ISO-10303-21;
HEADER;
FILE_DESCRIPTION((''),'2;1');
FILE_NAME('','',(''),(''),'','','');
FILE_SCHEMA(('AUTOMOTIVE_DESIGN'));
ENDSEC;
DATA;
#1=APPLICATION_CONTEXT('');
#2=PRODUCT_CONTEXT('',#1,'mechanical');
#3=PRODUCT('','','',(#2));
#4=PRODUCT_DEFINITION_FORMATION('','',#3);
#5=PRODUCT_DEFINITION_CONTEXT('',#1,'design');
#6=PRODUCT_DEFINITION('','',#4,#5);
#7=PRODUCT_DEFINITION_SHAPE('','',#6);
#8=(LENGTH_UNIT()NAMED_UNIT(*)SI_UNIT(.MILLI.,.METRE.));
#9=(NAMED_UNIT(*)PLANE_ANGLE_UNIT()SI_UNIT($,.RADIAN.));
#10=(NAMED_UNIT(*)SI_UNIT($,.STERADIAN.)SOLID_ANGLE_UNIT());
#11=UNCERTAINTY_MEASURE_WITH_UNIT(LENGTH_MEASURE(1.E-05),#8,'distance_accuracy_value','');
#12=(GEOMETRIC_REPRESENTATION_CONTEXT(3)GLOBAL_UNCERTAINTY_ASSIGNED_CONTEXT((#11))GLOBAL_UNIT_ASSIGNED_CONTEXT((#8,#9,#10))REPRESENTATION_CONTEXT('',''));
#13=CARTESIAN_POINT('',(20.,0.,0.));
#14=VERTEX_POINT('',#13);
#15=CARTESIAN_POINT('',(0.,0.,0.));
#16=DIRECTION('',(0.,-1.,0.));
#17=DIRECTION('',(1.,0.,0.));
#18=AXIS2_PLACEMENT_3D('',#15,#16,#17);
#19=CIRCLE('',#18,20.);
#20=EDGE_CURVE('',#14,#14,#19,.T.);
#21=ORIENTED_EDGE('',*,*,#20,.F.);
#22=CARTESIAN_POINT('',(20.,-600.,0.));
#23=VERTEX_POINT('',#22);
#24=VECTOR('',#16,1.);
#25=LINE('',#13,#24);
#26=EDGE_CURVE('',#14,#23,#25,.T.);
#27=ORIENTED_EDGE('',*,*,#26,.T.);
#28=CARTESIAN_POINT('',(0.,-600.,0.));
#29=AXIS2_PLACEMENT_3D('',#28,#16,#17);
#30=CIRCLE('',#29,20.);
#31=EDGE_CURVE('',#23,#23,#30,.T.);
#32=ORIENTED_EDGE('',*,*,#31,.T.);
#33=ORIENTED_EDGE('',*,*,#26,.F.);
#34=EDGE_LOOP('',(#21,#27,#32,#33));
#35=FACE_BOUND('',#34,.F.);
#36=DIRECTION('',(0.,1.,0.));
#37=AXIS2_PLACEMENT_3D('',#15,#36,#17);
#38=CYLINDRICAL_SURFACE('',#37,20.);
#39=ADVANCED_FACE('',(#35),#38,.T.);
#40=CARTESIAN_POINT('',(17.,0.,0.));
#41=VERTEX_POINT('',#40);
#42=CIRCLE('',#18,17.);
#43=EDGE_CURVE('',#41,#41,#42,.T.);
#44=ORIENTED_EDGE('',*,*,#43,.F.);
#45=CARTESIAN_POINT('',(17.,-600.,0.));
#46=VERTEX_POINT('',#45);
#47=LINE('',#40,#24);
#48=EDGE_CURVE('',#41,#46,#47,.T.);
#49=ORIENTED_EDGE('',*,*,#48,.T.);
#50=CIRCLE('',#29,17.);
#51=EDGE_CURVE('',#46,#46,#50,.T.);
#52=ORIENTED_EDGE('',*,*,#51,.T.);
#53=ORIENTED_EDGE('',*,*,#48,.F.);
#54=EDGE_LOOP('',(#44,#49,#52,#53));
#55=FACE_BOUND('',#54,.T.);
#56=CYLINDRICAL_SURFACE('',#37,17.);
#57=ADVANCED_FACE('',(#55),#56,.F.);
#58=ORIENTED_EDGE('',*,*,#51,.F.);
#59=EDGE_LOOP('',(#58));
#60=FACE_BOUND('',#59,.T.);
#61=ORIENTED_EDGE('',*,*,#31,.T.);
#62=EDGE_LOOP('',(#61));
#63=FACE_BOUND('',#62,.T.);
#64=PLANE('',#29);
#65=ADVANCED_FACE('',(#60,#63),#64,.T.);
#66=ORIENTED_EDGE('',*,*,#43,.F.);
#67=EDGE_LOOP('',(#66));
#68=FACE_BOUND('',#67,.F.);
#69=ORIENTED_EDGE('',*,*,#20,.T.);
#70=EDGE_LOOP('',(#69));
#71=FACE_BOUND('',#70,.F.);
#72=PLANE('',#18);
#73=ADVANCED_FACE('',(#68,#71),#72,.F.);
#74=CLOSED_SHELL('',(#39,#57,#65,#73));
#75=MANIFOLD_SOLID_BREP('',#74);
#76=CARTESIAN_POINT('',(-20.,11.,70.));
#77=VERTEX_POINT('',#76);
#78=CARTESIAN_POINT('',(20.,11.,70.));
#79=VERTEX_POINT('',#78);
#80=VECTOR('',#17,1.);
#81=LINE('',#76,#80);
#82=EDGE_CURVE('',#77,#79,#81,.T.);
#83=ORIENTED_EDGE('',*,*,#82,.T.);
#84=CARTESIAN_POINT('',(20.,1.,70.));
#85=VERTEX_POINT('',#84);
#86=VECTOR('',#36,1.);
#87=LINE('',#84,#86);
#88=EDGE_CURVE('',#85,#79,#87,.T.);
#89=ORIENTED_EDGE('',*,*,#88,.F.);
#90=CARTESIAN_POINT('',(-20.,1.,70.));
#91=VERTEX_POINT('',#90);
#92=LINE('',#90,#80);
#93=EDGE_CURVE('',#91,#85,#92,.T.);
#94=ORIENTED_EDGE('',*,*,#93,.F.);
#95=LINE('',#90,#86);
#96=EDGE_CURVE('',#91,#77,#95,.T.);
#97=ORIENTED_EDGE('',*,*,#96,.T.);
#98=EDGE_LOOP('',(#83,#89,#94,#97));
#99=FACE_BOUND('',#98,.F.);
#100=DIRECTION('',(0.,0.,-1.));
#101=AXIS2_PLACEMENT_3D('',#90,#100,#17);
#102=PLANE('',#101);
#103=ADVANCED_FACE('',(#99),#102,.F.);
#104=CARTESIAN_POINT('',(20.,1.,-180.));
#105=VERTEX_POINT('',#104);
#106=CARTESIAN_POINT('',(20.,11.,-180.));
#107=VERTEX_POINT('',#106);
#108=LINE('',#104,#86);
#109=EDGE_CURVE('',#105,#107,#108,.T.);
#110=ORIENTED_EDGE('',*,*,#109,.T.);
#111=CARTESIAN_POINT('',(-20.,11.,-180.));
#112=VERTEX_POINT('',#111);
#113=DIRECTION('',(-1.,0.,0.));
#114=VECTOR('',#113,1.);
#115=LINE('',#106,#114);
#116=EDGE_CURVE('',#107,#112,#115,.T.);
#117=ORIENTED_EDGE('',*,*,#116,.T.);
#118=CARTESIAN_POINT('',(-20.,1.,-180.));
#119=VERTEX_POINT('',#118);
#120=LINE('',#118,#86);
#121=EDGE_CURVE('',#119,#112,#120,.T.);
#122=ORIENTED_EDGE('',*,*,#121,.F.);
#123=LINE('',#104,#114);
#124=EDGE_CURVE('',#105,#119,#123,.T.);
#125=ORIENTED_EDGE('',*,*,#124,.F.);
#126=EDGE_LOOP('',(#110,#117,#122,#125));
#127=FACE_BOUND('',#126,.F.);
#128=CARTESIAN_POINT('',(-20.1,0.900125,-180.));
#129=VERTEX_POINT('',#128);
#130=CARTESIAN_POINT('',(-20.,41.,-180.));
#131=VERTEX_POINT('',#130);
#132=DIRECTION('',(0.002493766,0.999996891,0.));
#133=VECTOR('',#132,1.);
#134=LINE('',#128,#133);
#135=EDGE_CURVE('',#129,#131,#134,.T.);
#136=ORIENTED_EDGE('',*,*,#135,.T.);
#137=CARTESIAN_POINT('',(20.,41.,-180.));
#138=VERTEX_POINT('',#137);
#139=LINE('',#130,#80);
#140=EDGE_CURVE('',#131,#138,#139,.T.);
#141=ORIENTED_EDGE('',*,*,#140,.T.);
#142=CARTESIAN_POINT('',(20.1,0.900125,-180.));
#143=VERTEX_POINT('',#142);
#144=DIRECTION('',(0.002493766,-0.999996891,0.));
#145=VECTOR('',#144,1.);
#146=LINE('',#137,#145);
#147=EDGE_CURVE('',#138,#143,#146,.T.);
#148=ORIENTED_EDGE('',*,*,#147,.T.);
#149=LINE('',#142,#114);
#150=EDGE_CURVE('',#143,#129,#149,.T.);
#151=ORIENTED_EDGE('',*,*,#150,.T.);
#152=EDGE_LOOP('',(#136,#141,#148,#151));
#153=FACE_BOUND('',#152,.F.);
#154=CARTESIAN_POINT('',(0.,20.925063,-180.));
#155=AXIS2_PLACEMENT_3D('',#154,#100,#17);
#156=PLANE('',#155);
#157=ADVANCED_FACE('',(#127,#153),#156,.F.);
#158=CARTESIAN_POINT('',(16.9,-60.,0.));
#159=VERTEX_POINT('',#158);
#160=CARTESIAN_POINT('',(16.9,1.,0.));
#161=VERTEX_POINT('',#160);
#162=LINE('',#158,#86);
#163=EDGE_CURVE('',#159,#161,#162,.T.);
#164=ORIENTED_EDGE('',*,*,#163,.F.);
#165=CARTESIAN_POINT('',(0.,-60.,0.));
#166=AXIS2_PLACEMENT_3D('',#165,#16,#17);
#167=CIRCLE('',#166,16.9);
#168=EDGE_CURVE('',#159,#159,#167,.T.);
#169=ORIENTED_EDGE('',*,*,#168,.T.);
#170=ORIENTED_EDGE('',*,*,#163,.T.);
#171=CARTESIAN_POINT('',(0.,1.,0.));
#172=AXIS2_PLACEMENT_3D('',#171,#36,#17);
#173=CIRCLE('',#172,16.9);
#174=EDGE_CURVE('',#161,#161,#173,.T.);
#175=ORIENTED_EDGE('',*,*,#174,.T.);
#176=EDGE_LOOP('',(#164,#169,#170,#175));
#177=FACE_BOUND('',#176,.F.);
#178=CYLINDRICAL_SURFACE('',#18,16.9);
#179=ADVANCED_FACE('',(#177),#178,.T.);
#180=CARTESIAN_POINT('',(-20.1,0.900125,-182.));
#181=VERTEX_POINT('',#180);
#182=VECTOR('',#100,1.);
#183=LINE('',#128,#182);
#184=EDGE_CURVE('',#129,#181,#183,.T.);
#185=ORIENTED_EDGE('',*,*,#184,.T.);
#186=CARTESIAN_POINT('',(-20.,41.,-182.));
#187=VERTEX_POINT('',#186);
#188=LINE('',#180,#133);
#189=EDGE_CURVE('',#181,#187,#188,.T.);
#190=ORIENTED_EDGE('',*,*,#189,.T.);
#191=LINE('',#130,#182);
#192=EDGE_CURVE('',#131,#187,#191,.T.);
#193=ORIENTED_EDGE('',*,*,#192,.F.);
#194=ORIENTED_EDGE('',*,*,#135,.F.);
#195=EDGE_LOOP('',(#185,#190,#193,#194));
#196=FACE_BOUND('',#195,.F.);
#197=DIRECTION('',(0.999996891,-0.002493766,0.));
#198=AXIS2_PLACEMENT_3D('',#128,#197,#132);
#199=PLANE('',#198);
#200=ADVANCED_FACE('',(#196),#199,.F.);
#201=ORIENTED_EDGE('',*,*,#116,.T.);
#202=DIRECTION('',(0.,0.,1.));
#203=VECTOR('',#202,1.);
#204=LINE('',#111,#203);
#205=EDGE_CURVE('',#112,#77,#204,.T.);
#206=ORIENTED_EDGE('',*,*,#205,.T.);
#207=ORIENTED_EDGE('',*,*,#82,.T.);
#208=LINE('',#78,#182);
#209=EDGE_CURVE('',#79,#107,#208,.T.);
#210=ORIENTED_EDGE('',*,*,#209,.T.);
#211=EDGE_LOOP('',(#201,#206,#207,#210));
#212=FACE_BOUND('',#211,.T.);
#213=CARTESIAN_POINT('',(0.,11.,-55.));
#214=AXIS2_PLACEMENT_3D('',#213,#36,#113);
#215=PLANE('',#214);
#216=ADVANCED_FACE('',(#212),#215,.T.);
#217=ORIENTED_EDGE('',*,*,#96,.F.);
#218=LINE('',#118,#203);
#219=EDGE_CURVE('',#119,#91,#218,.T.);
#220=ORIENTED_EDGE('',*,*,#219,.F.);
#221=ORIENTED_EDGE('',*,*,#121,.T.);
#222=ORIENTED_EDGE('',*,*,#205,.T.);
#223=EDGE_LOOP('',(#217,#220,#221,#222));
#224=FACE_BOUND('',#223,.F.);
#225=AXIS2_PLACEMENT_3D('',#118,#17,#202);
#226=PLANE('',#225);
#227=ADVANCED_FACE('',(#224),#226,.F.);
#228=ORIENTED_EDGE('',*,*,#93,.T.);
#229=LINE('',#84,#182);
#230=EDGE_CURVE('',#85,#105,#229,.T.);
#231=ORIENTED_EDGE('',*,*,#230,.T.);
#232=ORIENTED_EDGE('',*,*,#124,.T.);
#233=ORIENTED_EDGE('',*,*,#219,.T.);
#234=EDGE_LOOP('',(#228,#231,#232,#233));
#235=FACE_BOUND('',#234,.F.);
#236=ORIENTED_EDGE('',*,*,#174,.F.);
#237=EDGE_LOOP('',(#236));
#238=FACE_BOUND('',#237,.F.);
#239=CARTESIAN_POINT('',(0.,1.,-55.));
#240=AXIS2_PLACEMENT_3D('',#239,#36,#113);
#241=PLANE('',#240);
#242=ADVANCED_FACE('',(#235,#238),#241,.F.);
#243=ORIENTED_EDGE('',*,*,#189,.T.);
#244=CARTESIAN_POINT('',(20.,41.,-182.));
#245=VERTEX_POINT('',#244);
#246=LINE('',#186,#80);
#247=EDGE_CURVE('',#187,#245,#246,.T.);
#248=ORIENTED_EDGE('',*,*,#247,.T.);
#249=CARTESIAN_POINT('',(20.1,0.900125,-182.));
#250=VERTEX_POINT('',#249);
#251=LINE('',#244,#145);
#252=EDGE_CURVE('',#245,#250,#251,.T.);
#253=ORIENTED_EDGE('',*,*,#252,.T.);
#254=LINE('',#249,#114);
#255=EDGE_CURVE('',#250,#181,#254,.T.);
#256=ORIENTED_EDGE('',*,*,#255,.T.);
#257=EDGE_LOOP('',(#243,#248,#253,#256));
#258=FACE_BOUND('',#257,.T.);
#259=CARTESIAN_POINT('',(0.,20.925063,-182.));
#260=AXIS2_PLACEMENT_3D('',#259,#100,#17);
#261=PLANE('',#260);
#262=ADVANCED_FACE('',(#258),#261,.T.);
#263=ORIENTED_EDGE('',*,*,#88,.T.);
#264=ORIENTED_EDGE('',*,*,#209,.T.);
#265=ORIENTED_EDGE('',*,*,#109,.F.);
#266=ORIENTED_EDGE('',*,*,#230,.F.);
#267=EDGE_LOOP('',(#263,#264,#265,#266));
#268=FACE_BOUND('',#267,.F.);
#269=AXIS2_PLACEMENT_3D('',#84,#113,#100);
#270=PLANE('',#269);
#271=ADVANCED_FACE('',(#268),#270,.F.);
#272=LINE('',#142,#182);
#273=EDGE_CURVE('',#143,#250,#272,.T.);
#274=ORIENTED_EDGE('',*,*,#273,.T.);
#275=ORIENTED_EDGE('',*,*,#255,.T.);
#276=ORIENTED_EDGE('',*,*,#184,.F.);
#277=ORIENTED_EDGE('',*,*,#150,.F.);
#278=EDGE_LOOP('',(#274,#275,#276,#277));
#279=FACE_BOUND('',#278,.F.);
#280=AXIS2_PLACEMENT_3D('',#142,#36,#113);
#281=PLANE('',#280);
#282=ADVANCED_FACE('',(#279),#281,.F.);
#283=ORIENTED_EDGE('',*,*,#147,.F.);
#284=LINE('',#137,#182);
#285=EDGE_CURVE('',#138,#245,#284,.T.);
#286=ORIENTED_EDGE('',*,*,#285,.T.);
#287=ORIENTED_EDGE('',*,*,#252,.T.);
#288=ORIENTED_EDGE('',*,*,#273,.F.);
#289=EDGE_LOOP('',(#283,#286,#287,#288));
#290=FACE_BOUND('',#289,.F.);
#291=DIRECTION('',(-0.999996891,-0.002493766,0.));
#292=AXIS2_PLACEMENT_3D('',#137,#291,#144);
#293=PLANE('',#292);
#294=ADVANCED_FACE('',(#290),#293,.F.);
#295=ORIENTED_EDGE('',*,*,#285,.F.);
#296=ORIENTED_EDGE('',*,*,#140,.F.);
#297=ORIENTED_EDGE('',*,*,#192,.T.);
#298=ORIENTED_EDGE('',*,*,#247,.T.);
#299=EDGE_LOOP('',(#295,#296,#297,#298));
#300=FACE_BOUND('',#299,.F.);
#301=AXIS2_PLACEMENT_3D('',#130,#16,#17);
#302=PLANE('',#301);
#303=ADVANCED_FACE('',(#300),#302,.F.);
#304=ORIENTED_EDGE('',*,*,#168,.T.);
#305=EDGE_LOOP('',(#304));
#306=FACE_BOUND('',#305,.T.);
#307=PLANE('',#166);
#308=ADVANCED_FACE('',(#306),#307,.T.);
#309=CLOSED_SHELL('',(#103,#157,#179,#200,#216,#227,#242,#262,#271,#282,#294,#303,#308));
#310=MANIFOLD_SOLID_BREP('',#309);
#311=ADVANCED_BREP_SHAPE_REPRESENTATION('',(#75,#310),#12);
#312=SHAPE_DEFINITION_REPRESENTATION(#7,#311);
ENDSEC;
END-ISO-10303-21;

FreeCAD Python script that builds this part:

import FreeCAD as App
import Part
import Sketcher

doc = App.newDocument("Part")
body = doc.addObject("PartDesign::Body", "Body")

# Sketch on XZ plane
sketch1 = doc.addObject("Sketcher::SketchObject", "Sketch")
body.addObject(sketch1)
sketch1.AttachmentSupport = (doc.XZ_Plane, [""])
sketch1.MapMode = "FlatFace"
sketch1.addGeometry(Part.Circle(App.Vector(0, 0, 0), App.Vector(0, 0, 1), 17), False)
sketch1.addConstraint([
    Sketcher.Constraint("Coincident", 0, 3, -1, 1),
    Sketcher.Constraint("Diameter", 0, 33.8),
])
pad1 = doc.addObject("PartDesign::Pad", "Pad")
body.addObject(pad1)
pad1.Profile = sketch1
pad1.Length = 60

# Sketch on XZ plane
sketch2 = doc.addObject("Sketcher::SketchObject", "Sketch001")
body.addObject(sketch2)
sketch2.AttachmentSupport = (doc.XZ_Plane, [""])
sketch2.MapMode = "FlatFace"
sketch2.addGeometry(Part.Circle(App.Vector(0, 0, 0), App.Vector(0, 0, 1), 17), False)
sketch2.addConstraint([
    Sketcher.Constraint("Coincident", 0, 3, -1, 1),
    Sketcher.Constraint("Diameter", 0, 33.8),
])
pad2 = doc.addObject("PartDesign::Pad", "Pad001")
body.addObject(pad2)
pad2.Profile = sketch2
pad2.Length = 1
pad2.Reversed = True

# Sketch on XZ plane
sketch3 = doc.addObject("Sketcher::SketchObject", "Sketch002")
body.addObject(sketch3)
sketch3.AttachmentSupport = (doc.XZ_Plane, [""])
sketch3.MapMode = "FlatFace"
sketch3.AttachmentOffset = App.Placement(App.Vector(0, 0, -1), App.Rotation())
sketch3.addGeometry([
    Part.LineSegment(App.Vector(20, -180, 0), App.Vector(-20, -180, 0)),
    Part.LineSegment(App.Vector(-20, -180, 0), App.Vector(-20, 70, 0)),
    Part.LineSegment(App.Vector(-20, 70, 0), App.Vector(20, 70, 0)),
    Part.LineSegment(App.Vector(20, 70, 0), App.Vector(20, -180, 0)),
], False)
sketch3.addConstraint([
    Sketcher.Constraint("Coincident", 0, 2, 1, 1),
    Sketcher.Constraint("Coincident", 1, 2, 2, 1),
    Sketcher.Constraint("Coincident", 2, 2, 3, 1),
    Sketcher.Constraint("Coincident", 3, 2, 0, 1),
    Sketcher.Constraint("Horizontal", 0),
    Sketcher.Constraint("Vertical", 1),
    Sketcher.Constraint("Horizontal", 2),
    Sketcher.Constraint("Vertical", 3),
    Sketcher.Constraint("DistanceX", 0, 2, 0, 1, 40.0),
    Sketcher.Constraint("DistanceY", 1, 1, 1, 2, 250.0),
    Sketcher.Constraint("DistanceX", 0, 2, -1, 1, 20.0),
    Sketcher.Constraint("DistanceY", 0, 2, -1, 1, 180.0),
])
pad3 = doc.addObject("PartDesign::Pad", "Pad002")
body.addObject(pad3)
pad3.Profile = sketch3
pad3.Length = 10
pad3.Reversed = True

# Sketch on XY plane
sketch4 = doc.addObject("Sketcher::SketchObject", "Sketch003")
body.addObject(sketch4)
sketch4.AttachmentSupport = (doc.XY_Plane, [""])
sketch4.MapMode = "FlatFace"
sketch4.AttachmentOffset = App.Placement(App.Vector(0, 0, -180), App.Rotation())
sketch4.addGeometry([
    Part.LineSegment(App.Vector(-20, 1, 0), App.Vector(-20, 41, 0)),
    Part.LineSegment(App.Vector(-20, 41, 0), App.Vector(20, 41, 0)),
    Part.LineSegment(App.Vector(20, 41, 0), App.Vector(20, 1, 0)),
    Part.LineSegment(App.Vector(20, 1, 0), App.Vector(-20, 1, 0)),
], False)
sketch4.addConstraint([
    Sketcher.Constraint("Coincident", 0, 2, 1, 1),
    Sketcher.Constraint("Coincident", 1, 2, 2, 1),
    Sketcher.Constraint("Coincident", 2, 2, 3, 1),
    Sketcher.Constraint("Coincident", 3, 2, 0, 1),
    Sketcher.Constraint("Horizontal", 1),
    Sketcher.Constraint("Horizontal", 3),
    Sketcher.Constraint("DistanceX", 1, 1, 1, 2, 40.0),
    Sketcher.Constraint("DistanceX", 3, 2, 3, 1, 40.2),
    Sketcher.Constraint("DistanceX", 0, 2, -1, 1, 20.0),
    Sketcher.Constraint("DistanceY", -1, 1, 0, 2, 41.0),
    Sketcher.Constraint("Distance", 0, 40.1),
    Sketcher.Constraint("DistanceX", -1, 1, 2, 2, 20.1),
])
pad4 = doc.addObject("PartDesign::Pad", "Pad003")
body.addObject(pad4)
pad4.Profile = sketch4
pad4.Length = 2
pad4.Reversed = True
body2 = doc.addObject("PartDesign::Body", "Body001")

# Sketch on XZ plane
sketch5 = doc.addObject("Sketcher::SketchObject", "Sketch004")
body2.addObject(sketch5)
sketch5.AttachmentSupport = (doc.getObject("XZ_Plane001"), [""])
sketch5.MapMode = "FlatFace"
sketch5.addGeometry([
    Part.Circle(App.Vector(0, 0, 0), App.Vector(0, 0, 1), 20),
    Part.Circle(App.Vector(0, 0, 0), App.Vector(0, 0, 1), 17),
], False)
sketch5.addConstraint([
    Sketcher.Constraint("Coincident", 0, 3, -1, 1),
    Sketcher.Constraint("Coincident", 1, 3, -1, 1),
    Sketcher.Constraint("Diameter", 0, 40.0),
    Sketcher.Constraint("Diameter", 1, 34.0),
])
pad5 = doc.addObject("PartDesign::Pad", "Pad004")
body2.addObject(pad5)
pad5.Profile = sketch5
pad5.Length = 600

doc.recompute()
